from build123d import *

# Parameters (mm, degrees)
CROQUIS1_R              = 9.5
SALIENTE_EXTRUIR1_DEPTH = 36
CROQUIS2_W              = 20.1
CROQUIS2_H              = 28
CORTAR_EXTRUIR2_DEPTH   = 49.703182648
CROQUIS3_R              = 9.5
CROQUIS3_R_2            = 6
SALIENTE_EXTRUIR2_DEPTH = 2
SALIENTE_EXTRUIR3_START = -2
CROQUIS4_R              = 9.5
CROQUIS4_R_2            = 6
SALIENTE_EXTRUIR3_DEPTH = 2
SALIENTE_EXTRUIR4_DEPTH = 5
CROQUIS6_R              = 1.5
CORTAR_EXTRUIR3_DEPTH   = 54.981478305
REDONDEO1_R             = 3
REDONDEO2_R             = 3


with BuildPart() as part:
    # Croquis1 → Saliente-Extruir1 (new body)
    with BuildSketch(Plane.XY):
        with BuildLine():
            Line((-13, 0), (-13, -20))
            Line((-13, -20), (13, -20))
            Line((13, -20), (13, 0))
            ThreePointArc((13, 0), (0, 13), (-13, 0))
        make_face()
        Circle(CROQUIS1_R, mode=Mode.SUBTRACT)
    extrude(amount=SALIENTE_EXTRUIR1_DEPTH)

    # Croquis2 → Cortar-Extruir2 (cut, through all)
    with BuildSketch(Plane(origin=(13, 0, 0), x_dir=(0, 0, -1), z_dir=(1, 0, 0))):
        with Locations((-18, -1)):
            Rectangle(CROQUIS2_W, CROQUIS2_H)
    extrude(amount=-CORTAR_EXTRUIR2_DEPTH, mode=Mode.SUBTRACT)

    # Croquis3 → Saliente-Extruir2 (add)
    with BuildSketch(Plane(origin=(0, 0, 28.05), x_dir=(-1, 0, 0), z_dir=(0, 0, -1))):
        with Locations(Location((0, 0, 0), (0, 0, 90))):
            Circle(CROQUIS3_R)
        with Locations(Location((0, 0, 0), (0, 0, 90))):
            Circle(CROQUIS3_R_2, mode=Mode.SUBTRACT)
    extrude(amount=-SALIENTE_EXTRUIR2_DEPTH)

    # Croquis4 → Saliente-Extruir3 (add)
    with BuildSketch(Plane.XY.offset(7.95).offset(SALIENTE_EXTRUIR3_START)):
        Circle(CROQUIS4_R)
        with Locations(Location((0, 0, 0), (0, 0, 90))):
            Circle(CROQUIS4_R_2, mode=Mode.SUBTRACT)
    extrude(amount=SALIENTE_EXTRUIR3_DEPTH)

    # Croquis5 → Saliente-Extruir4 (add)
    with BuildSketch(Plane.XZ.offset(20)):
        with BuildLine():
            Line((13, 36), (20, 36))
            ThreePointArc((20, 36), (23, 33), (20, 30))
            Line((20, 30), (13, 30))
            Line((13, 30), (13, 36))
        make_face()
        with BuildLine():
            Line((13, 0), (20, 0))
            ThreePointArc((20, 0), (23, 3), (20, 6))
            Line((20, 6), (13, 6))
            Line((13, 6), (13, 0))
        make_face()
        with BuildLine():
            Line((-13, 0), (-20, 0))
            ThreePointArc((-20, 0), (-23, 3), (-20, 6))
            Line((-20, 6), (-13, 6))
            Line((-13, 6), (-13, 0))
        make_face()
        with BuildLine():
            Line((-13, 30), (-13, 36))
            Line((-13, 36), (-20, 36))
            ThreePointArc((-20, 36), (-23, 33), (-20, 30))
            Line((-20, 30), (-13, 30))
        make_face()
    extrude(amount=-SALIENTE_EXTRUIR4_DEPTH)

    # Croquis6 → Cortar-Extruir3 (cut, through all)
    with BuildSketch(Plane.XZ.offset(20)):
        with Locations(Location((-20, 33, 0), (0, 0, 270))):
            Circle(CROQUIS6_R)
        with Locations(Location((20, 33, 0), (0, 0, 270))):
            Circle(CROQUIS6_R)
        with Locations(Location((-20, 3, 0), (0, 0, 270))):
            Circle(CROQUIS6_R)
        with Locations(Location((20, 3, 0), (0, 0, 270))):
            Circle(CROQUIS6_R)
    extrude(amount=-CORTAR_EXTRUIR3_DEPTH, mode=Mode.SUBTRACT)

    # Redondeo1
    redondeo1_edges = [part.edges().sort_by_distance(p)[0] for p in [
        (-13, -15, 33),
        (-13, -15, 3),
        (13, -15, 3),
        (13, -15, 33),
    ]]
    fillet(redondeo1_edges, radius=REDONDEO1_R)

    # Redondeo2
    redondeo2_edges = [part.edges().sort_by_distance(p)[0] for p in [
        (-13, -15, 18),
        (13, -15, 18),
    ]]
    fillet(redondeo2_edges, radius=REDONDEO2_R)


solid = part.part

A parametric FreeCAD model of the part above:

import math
import FreeCAD as App
import Part
import Sketcher
from FreeCAD import Vector
Q = App.Units.Quantity


def edges_at(feature, points):
    """Names of the edges that pass closest to the given points."""
    edges = feature.Shape.Edges
    near = lambda p: min(range(len(edges)), key=lambda i: edges[i].distToShape(Part.Vertex(*p))[0])
    return sorted({f"Edge{near(p) + 1}" for p in points})


def add_polygon(sketch, points):
    """Adds a closed chain of lines whose ends are joined by coincident constraints."""
    first, n = sketch.GeometryCount, len(points)
    for a, b in zip(points, points[1:] + points[:1]):
        sketch.addGeometry(Part.LineSegment(App.Vector(*a, 0), App.Vector(*b, 0)), False)
    for i in range(n):
        sketch.addConstraint(Sketcher.Constraint("Coincident", first + i, 2, first + (i + 1) % n, 1))

doc = App.newDocument("Part")
params = doc.addObject("Spreadsheet::Sheet", "Params")
for row, (alias, value) in enumerate([
    ("sketch1_diameter", "19 mm"),
    ("sketch1_radius", "13 mm"),
    ("sketch1_height", "20 mm"),
    ("pad1_length", "36 mm"),
    ("sketch2_width", "28 mm"),
    ("sketch2_height", "20.1 mm"),
    ("sketch3_diameter", "19 mm"),
    ("sketch3_diameter2", "12 mm"),
    ("pad2_length", "2 mm"),
    ("sketch4_diameter", "19 mm"),
    ("sketch4_diameter2", "12 mm"),
    ("pad3_length", "2 mm"),
    ("sketch5_radius", "3 mm"),
    ("sketch5_width", "7 mm"),
    ("pad4_length", "5 mm"),
    ("sketch6_diameter", "3 mm"),
    ("fillet_radius", "3 mm"),
    ("fillet2_radius", "3 mm"),
], start=1):
    params.set(f"A{row}", alias)
    params.set(f"B{row}", "=" + value)
    params.setAlias(f"B{row}", alias)

body = doc.addObject("PartDesign::Body", "Body")

# Sketch on XY plane
sketch1 = doc.addObject("Sketcher::SketchObject", "Sketch")
body.addObject(sketch1)
sketch1.AttachmentSupport = (doc.XY_Plane, [""])
sketch1.MapMode = "FlatFace"
sketch1.addGeometry(Part.LineSegment(Vector(-13, 0, 0), Vector(-13, -20, 0)), False)
sketch1.addGeometry(Part.LineSegment(Vector(-13, -20, 0), Vector(13, -20, 0)), False)
sketch1.addGeometry(Part.LineSegment(Vector(13, -20, 0), Vector(13, 0, 0)), False)
sketch1.addGeometry(Part.ArcOfCircle(Part.Circle(Vector(0, 0, 0), Vector(0, 0, 1), 13), math.radians(0), math.radians(180)), False)
sketch1.addGeometry(Part.Circle(Vector(0, 0, 0), Vector(0, 0, 1), 10), False)
sketch1.addConstraint(Sketcher.Constraint("Coincident", 0, 2, 1, 1))
sketch1.addConstraint(Sketcher.Constraint("Coincident", 1, 2, 2, 1))
sketch1.addConstraint(Sketcher.Constraint("Tangent", 2, 2, 3, 1))
sketch1.addConstraint(Sketcher.Constraint("Tangent", 3, 2, 0, 1))
sketch1.addConstraint(Sketcher.Constraint("Vertical", 0))
sketch1.addConstraint(Sketcher.Constraint("Horizontal", 1))
sketch1.addConstraint(Sketcher.Constraint("Vertical", 2))
sketch1.addConstraint(Sketcher.Constraint("Coincident", 3, 3, -1, 1))
sketch1.addConstraint(Sketcher.Constraint("Coincident", 4, 3, -1, 1))
sketch1.addConstraint(Sketcher.Constraint("Diameter", 4, Q("19 mm")))
sketch1.addConstraint(Sketcher.Constraint("Radius", 3, Q("13 mm")))
sketch1.addConstraint(Sketcher.Constraint("DistanceY", 0, 2, 0, 1, Q("20 mm")))
sketch1.setExpression("Constraints[9]", "Params.sketch1_diameter")
sketch1.setExpression("Constraints[10]", "Params.sketch1_radius")
sketch1.setExpression("Constraints[11]", "Params.sketch1_height")
pad1 = doc.addObject("PartDesign::Pad", "Pad")
body.addObject(pad1)
pad1.Profile = sketch1
pad1.setExpression("Length", "Params.pad1_length")

# Sketch on YZ plane
sketch2 = doc.addObject("Sketcher::SketchObject", "Sketch001")
body.addObject(sketch2)
sketch2.AttachmentSupport = (doc.YZ_Plane, [""])
sketch2.MapMode = "FlatFace"
sketch2.AttachmentOffset = App.Placement(Vector(0, 0, 13), App.Rotation())
add_polygon(sketch2, [(13, 28), (-15, 28), (-15, 8), (13, 8)])  # lines 0-3
sketch2.addConstraint(Sketcher.Constraint("Horizontal", 0))
sketch2.addConstraint(Sketcher.Constraint("Vertical", 1))
sketch2.addConstraint(Sketcher.Constraint("Horizontal", 2))
sketch2.addConstraint(Sketcher.Constraint("Vertical", 3))
sketch2.addConstraint(Sketcher.Constraint("DistanceX", 0, 2, 0, 1, Q("28 mm")))
sketch2.addConstraint(Sketcher.Constraint("DistanceY", 1, 2, 1, 1, Q("20.1 mm")))
sketch2.addConstraint(Sketcher.Constraint("DistanceX", 0, 2, -1, 1, Q("15 mm")))
sketch2.addConstraint(Sketcher.Constraint("DistanceY", -1, 1, 0, 2, Q("28.05 mm")))
sketch2.setExpression("Constraints[8]", "Params.sketch2_width")
sketch2.setExpression("Constraints[9]", "Params.sketch2_height")
pocket1 = doc.addObject("PartDesign::Pocket", "Pocket")
body.addObject(pocket1)
pocket1.Profile = sketch2
pocket1.Type = "ThroughAll"

# Sketch on XY plane
sketch3 = doc.addObject("Sketcher::SketchObject", "Sketch002")
body.addObject(sketch3)
sketch3.AttachmentSupport = (doc.XY_Plane, [""])
sketch3.MapMode = "FlatFace"
sketch3.AttachmentOffset = App.Placement(Vector(0, 0, 28.05), App.Rotation())
sketch3.addGeometry(Part.Circle(Vector(0, 0, 0), Vector(0, 0, 1), 10), False)
sketch3.addGeometry(Part.Circle(Vector(0, 0, 0), Vector(0, 0, 1), 6), False)
sketch3.addConstraint(Sketcher.Constraint("Coincident", 0, 3, -1, 1))
sketch3.addConstraint(Sketcher.Constraint("Coincident", 1, 3, -1, 1))
sketch3.addConstraint(Sketcher.Constraint("Diameter", 0, Q("19 mm")))
sketch3.addConstraint(Sketcher.Constraint("Diameter", 1, Q("12 mm")))
sketch3.setExpression("Constraints[2]", "Params.sketch3_diameter")
sketch3.setExpression("Constraints[3]", "Params.sketch3_diameter2")
pad2 = doc.addObject("PartDesign::Pad", "Pad001")
body.addObject(pad2)
pad2.Profile = sketch3
pad2.setExpression("Length", "Params.pad2_length")

# Sketch on XY plane
sketch4 = doc.addObject("Sketcher::SketchObject", "Sketch003")
body.addObject(sketch4)
sketch4.AttachmentSupport = (doc.XY_Plane, [""])
sketch4.MapMode = "FlatFace"
sketch4.AttachmentOffset = App.Placement(Vector(0, 0, 5.95), App.Rotation())
sketch4.addGeometry(Part.Circle(Vector(0, 0, 0), Vector(0, 0, 1), 10), False)
sketch4.addGeometry(Part.Circle(Vector(0, 0, 0), Vector(0, 0, 1), 6), False)
sketch4.addConstraint(Sketcher.Constraint("Coincident", 0, 3, -1, 1))
sketch4.addConstraint(Sketcher.Constraint("Coincident", 1, 3, -1, 1))
sketch4.addConstraint(Sketcher.Constraint("Diameter", 0, Q("19 mm")))
sketch4.addConstraint(Sketcher.Constraint("Diameter", 1, Q("12 mm")))
sketch4.setExpression("Constraints[2]", "Params.sketch4_diameter")
sketch4.setExpression("Constraints[3]", "Params.sketch4_diameter2")
pad3 = doc.addObject("PartDesign::Pad", "Pad002")
body.addObject(pad3)
pad3.Profile = sketch4
pad3.setExpression("Length", "Params.pad3_length")

# Sketch on XZ plane
sketch5 = doc.addObject("Sketcher::SketchObject", "Sketch004")
body.addObject(sketch5)
sketch5.AttachmentSupport = (doc.XZ_Plane, [""])
sketch5.MapMode = "FlatFace"
sketch5.AttachmentOffset = App.Placement(Vector(0, 0, 20), App.Rotation())
sketch5.addGeometry(Part.LineSegment(Vector(20, 36, 0), Vector(13, 36, 0)), False)
sketch5.addGeometry(Part.LineSegment(Vector(13, 36, 0), Vector(13, 30, 0)), False)
sketch5.addGeometry(Part.LineSegment(Vector(13, 30, 0), Vector(20, 30, 0)), False)
sketch5.addGeometry(Part.ArcOfCircle(Part.Circle(Vector(20, 33, 0), Vector(0, 0, 1), 3), math.radians(-90), math.radians(90)), False)
sketch5.addGeometry(Part.LineSegment(Vector(13, 0, 0), Vector(20, 0, 0)), False)
sketch5.addGeometry(Part.ArcOfCircle(Part.Circle(Vector(20, 3, 0), Vector(0, 0, 1), 3), math.radians(-90), math.radians(90)), False)
sketch5.addGeometry(Part.LineSegment(Vector(20, 6, 0), Vector(13, 6, 0)), False)
sketch5.addGeometry(Part.LineSegment(Vector(13, 6, 0), Vector(13, 0, 0)), False)
sketch5.addGeometry(Part.LineSegment(Vector(-20, 0, 0), Vector(-13, 0, 0)), False)
sketch5.addGeometry(Part.LineSegment(Vector(-13, 0, 0), Vector(-13, 6, 0)), False)
sketch5.addGeometry(Part.LineSegment(Vector(-13, 6, 0), Vector(-20, 6, 0)), False)
sketch5.addGeometry(Part.ArcOfCircle(Part.Circle(Vector(-20, 3, 0), Vector(0, 0, 1), 3), math.radians(90), math.radians(270)), False)
sketch5.addGeometry(Part.LineSegment(Vector(-13, 30, 0), Vector(-13, 36, 0)), False)
sketch5.addGeometry(Part.LineSegment(Vector(-13, 36, 0), Vector(-20, 36, 0)), False)
sketch5.addGeometry(Part.ArcOfCircle(Part.Circle(Vector(-20, 33, 0), Vector(0, 0, 1), 3), math.radians(90), math.radians(270)), False)
sketch5.addGeometry(Part.LineSegment(Vector(-20, 30, 0), Vector(-13, 30, 0)), False)
sketch5.addConstraint(Sketcher.Constraint("Coincident", 0, 2, 1, 1))
sketch5.addConstraint(Sketcher.Constraint("Coincident", 1, 2, 2, 1))
sketch5.addConstraint(Sketcher.Constraint("Tangent", 2, 2, 3, 1))
sketch5.addConstraint(Sketcher.Constraint("Tangent", 3, 2, 0, 1))
sketch5.addConstraint(Sketcher.Constraint("Tangent", 4, 2, 5, 1))
sketch5.addConstraint(Sketcher.Constraint("Tangent", 5, 2, 6, 1))
sketch5.addConstraint(Sketcher.Constraint("Coincident", 6, 2, 7, 1))
sketch5.addConstraint(Sketcher.Constraint("Coincident", 7, 2, 4, 1))
sketch5.addConstraint(Sketcher.Constraint("Coincident", 8, 2, 9, 1))
sketch5.addConstraint(Sketcher.Constraint("Coincident", 9, 2, 10, 1))
sketch5.addConstraint(Sketcher.Constraint("Tangent", 10, 2, 11, 1))
sketch5.addConstraint(Sketcher.Constraint("Tangent", 11, 2, 8, 1))
sketch5.addConstraint(Sketcher.Constraint("Coincident", 12, 2, 13, 1))
sketch5.addConstraint(Sketcher.Constraint("Tangent", 13, 2, 14, 1))
sketch5.addConstraint(Sketcher.Constraint("Tangent", 14, 2, 15, 1))
sketch5.addConstraint(Sketcher.Constraint("Coincident", 15, 2, 12, 1))
sketch5.addConstraint(Sketcher.Constraint("Horizontal", 0))
sketch5.addConstraint(Sketcher.Constraint("Vertical", 1))
sketch5.addConstraint(Sketcher.Constraint("Horizontal", 2))
sketch5.addConstraint(Sketcher.Constraint("Horizontal", 4))
sketch5.addConstraint(Sketcher.Constraint("Horizontal", 6))
sketch5.addConstraint(Sketcher.Constraint("Vertical", 7))
sketch5.addConstraint(Sketcher.Constraint("Horizontal", 8))
sketch5.addConstraint(Sketcher.Constraint("Vertical", 9))
sketch5.addConstraint(Sketcher.Constraint("Horizontal", 10))
sketch5.addConstraint(Sketcher.Constraint("Vertical", 12))
sketch5.addConstraint(Sketcher.Constraint("Horizontal", 13))
sketch5.addConstraint(Sketcher.Constraint("Horizontal", 15))
sketch5.addConstraint(Sketcher.Constraint("Equal", 3, 5))
sketch5.addConstraint(Sketcher.Constraint("Equal", 5, 11))
sketch5.addConstraint(Sketcher.Constraint("Equal", 11, 14))
sketch5.addConstraint(Sketcher.Constraint("Symmetric", 7, 2, 8, 2, -1, 1))
sketch5.addConstraint(Sketcher.Constraint("Symmetric", 5, 3, 11, 3, -2))
sketch5.addConstraint(Sketcher.Constraint("Symmetric", 3, 3, 14, 3, -2))
sketch5.addConstraint(Sketcher.Constraint("Vertical", 3, 3, 5, 3))
sketch5.addConstraint(Sketcher.Constraint("Vertical", 1, 2, 6, 2))
sketch5.addConstraint(Sketcher.Constraint("Vertical", 9, 2, 12, 2))
sketch5.addConstraint(Sketcher.Constraint("Radius", 3, Q("3 mm")))
sketch5.addConstraint(Sketcher.Constraint("DistanceX", 0, 2, 0, 1, Q("7 mm")))
sketch5.addConstraint(Sketcher.Constraint("DistanceX", -1, 1, 3, 3, Q("20 mm")))
sketch5.addConstraint(Sketcher.Constraint("DistanceY", -1, 1, 3, 3, Q("33 mm")))
sketch5.setExpression("Constraints[37]", "Params.sketch5_radius")
sketch5.setExpression("Constraints[38]", "Params.sketch5_width")
pad4 = doc.addObject("PartDesign::Pad", "Pad003")
body.addObject(pad4)
pad4.Profile = sketch5
pad4.setExpression("Length", "Params.pad4_length")
pad4.Reversed = True

# Sketch on XZ plane
sketch6 = doc.addObject("Sketcher::SketchObject", "Sketch005")
body.addObject(sketch6)
sketch6.AttachmentSupport = (doc.XZ_Plane, [""])
sketch6.MapMode = "FlatFace"
sketch6.AttachmentOffset = App.Placement(Vector(0, 0, 20), App.Rotation())
sketch6.addGeometry(Part.Circle(Vector(-20, 33, 0), Vector(0, 0, 1), 1.5), False)
sketch6.addGeometry(Part.Circle(Vector(20, 33, 0), Vector(0, 0, 1), 1.5), False)
sketch6.addGeometry(Part.Circle(Vector(-20, 3, 0), Vector(0, 0, 1), 1.5), False)
sketch6.addGeometry(Part.Circle(Vector(20, 3, 0), Vector(0, 0, 1), 1.5), False)
sketch6.addConstraint(Sketcher.Constraint("Equal", 0, 1))
sketch6.addConstraint(Sketcher.Constraint("Equal", 1, 2))
sketch6.addConstraint(Sketcher.Constraint("Equal", 2, 3))
sketch6.addConstraint(Sketcher.Constraint("Symmetric", 0, 3, 1, 3, -2))
sketch6.addConstraint(Sketcher.Constraint("Symmetric", 2, 3, 3, 3, -2))
sketch6.addConstraint(Sketcher.Constraint("Vertical", 0, 3, 2, 3))
sketch6.addConstraint(Sketcher.Constraint("Diameter", 0, Q("3 mm")))
sketch6.addConstraint(Sketcher.Constraint("DistanceX", 0, 3, -1, 1, Q("20 mm")))
sketch6.addConstraint(Sketcher.Constraint("DistanceY", -1, 1, 0, 3, Q("33 mm")))
sketch6.addConstraint(Sketcher.Constraint("DistanceY", -1, 1, 2, 3, Q("3 mm")))
sketch6.setExpression("Constraints[6]", "Params.sketch6_diameter")
pocket2 = doc.addObject("PartDesign::Pocket", "Pocket001")
body.addObject(pocket2)
pocket2.Profile = sketch6
pocket2.Type = "ThroughAll"
doc.recompute()

fillet = doc.addObject("PartDesign::Fillet", "Fillet")
body.addObject(fillet)
fillet.Base = (pocket2, edges_at(pocket2, [
    (-13, -15, 33),
    (-13, -15, 3),
    (13, -15, 3),
    (13, -15, 33),
]))
fillet.setExpression("Radius", "Params.fillet_radius")
doc.recompute()

fillet2 = doc.addObject("PartDesign::Fillet", "Fillet001")
body.addObject(fillet2)
fillet2.Base = (fillet, edges_at(fillet, [(-13, -15, 18), (13, -15, 18)]))
fillet2.setExpression("Radius", "Params.fillet2_radius")

doc.recompute()
